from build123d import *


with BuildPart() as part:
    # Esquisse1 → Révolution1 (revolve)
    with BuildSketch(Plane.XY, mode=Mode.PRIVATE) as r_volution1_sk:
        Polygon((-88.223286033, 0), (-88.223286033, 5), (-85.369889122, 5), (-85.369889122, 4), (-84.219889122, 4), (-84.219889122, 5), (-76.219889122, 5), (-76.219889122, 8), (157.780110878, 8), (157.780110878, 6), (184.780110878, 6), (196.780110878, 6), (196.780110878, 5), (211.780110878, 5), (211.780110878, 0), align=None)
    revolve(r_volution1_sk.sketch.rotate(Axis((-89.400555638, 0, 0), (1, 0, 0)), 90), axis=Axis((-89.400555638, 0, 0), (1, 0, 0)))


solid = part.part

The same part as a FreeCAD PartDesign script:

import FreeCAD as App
import Part
import Sketcher
Q = App.Units.Quantity

doc = App.newDocument("Part")
params = doc.addObject("Spreadsheet::Sheet", "Params")
for row, (alias, value) in enumerate([
    ("sketch1_width", "15 mm"),
    ("sketch1_width2", "39 mm"),
    ("sketch1_width3", "234 mm"),
    ("sketch1_width4", "8 mm"),
    ("sketch1_height", "5 mm"),
    ("revolution_angle", "360 deg"),
], start=1):
    params.set(f"A{row}", alias)
    params.set(f"B{row}", "=" + value)
    params.setAlias(f"B{row}", alias)

body = doc.addObject("PartDesign::Body", "Body")

# Sketch on XY plane
sketch1 = body.newObject("Sketcher::SketchObject", "Sketch")
sketch1.AttachmentSupport = (doc.getObject("XY_Plane"), [""])
sketch1.MapMode = "FlatFace"
sketch1.addGeometry(Part.LineSegment(App.Vector(-88.2, 5, 0), App.Vector(-88.2, 0, 0)), False)
sketch1.addGeometry(Part.LineSegment(App.Vector(-88.2, 0, 0), App.Vector(211.8, 0, 0)), False)
sketch1.addGeometry(Part.LineSegment(App.Vector(211.8, 0, 0), App.Vector(211.8, 5, 0)), False)
sketch1.addGeometry(Part.LineSegment(App.Vector(211.8, 5, 0), App.Vector(196.8, 5, 0)), False)
sketch1.addGeometry(Part.LineSegment(App.Vector(196.8, 5, 0), App.Vector(196.8, 6, 0)), False)
sketch1.addGeometry(Part.LineSegment(App.Vector(196.8, 6, 0), App.Vector(157.8, 6, 0)), False)
sketch1.addGeometry(Part.LineSegment(App.Vector(157.8, 6, 0), App.Vector(157.8, 8, 0)), False)
sketch1.addGeometry(Part.LineSegment(App.Vector(157.8, 8, 0), App.Vector(-76.2, 8, 0)), False)
sketch1.addGeometry(Part.LineSegment(App.Vector(-76.2, 8, 0), App.Vector(-76.2, 5, 0)), False)
sketch1.addGeometry(Part.LineSegment(App.Vector(-76.2, 5, 0), App.Vector(-84.2, 5, 0)), False)
sketch1.addGeometry(Part.LineSegment(App.Vector(-84.2, 5, 0), App.Vector(-84.2, 4, 0)), False)
sketch1.addGeometry(Part.LineSegment(App.Vector(-84.2, 4, 0), App.Vector(-85.4, 4, 0)), False)
sketch1.addGeometry(Part.LineSegment(App.Vector(-85.4, 4, 0), App.Vector(-85.4, 5, 0)), False)
sketch1.addGeometry(Part.LineSegment(App.Vector(-85.4, 5, 0), App.Vector(-88.2, 5, 0)), False)
sketch1.addConstraint(Sketcher.Constraint("Coincident", 0, 2, 1, 1))
sketch1.addConstraint(Sketcher.Constraint("Coincident", 1, 2, 2, 1))
sketch1.addConstraint(Sketcher.Constraint("Coincident", 2, 2, 3, 1))
sketch1.addConstraint(Sketcher.Constraint("Coincident", 3, 2, 4, 1))
sketch1.addConstraint(Sketcher.Constraint("Coincident", 4, 2, 5, 1))
sketch1.addConstraint(Sketcher.Constraint("Coincident", 5, 2, 6, 1))
sketch1.addConstraint(Sketcher.Constraint("Coincident", 6, 2, 7, 1))
sketch1.addConstraint(Sketcher.Constraint("Coincident", 7, 2, 8, 1))
sketch1.addConstraint(Sketcher.Constraint("Coincident", 8, 2, 9, 1))
sketch1.addConstraint(Sketcher.Constraint("Coincident", 9, 2, 10, 1))
sketch1.addConstraint(Sketcher.Constraint("Coincident", 10, 2, 11, 1))
sketch1.addConstraint(Sketcher.Constraint("Coincident", 11, 2, 12, 1))
sketch1.addConstraint(Sketcher.Constraint("Coincident", 12, 2, 13, 1))
sketch1.addConstraint(Sketcher.Constraint("Coincident", 13, 2, 0, 1))
sketch1.addConstraint(Sketcher.Constraint("Vertical", 0))
sketch1.addConstraint(Sketcher.Constraint("Horizontal", 1))
sketch1.addConstraint(Sketcher.Constraint("Vertical", 2))
sketch1.addConstraint(Sketcher.Constraint("Horizontal", 3))
sketch1.addConstraint(Sketcher.Constraint("Vertical", 4))
sketch1.addConstraint(Sketcher.Constraint("Horizontal", 5))
sketch1.addConstraint(Sketcher.Constraint("Vertical", 6))
sketch1.addConstraint(Sketcher.Constraint("Horizontal", 7))
sketch1.addConstraint(Sketcher.Constraint("Vertical", 8))
sketch1.addConstraint(Sketcher.Constraint("Horizontal", 9))
sketch1.addConstraint(Sketcher.Constraint("Vertical", 10))
sketch1.addConstraint(Sketcher.Constraint("Horizontal", 11))
sketch1.addConstraint(Sketcher.Constraint("Vertical", 12))
sketch1.addConstraint(Sketcher.Constraint("Horizontal", 13))
sketch1.addConstraint(Sketcher.Constraint("PointOnObject", 0, 2, -1))
sketch1.addConstraint(Sketcher.Constraint("Horizontal", 3, 2, 8, 2))
sketch1.addConstraint(Sketcher.Constraint("Horizontal", 9, 2, 12, 2))
sketch1.addConstraint(Sketcher.Constraint("Equal", 4, 10))
sketch1.addConstraint(Sketcher.Constraint("DistanceX", 3, 2, 3, 1, Q("15 mm")))
sketch1.addConstraint(Sketcher.Constraint("DistanceX", 5, 2, 5, 1, Q("39 mm")))
sketch1.addConstraint(Sketcher.Constraint("DistanceX", 7, 2, 7, 1, Q("234 mm")))
sketch1.addConstraint(Sketcher.Constraint("DistanceX", 9, 2, 9, 1, Q("8 mm")))
sketch1.addConstraint(Sketcher.Constraint("DistanceY", 0, 2, 0, 1, Q("5 mm")))
sketch1.addConstraint(Sketcher.Constraint("DistanceY", 4, 1, 4, 2, Q("1 mm")))
sketch1.addConstraint(Sketcher.Constraint("DistanceY", 6, 1, 6, 2, Q("2 mm")))
sketch1.addConstraint(Sketcher.Constraint("DistanceX", 11, 2, 11, 1, Q("1.15 mm")))
sketch1.addConstraint(Sketcher.Constraint("DistanceX", 1, 1, 1, 2, Q("300.003397 mm")))
sketch1.addConstraint(Sketcher.Constraint("DistanceX", -1, 1, 1, 2, Q("211.780111 mm")))
sketch1.setExpression("Constraints[32]", "Params.sketch1_width")
sketch1.setExpression("Constraints[33]", "Params.sketch1_width2")
sketch1.setExpression("Constraints[34]", "Params.sketch1_width3")
sketch1.setExpression("Constraints[35]", "Params.sketch1_width4")
sketch1.setExpression("Constraints[36]", "Params.sketch1_height")
revolution = body.newObject("PartDesign::Revolution", "Revolution")
revolution.Profile = sketch1
revolution.ReferenceAxis = (sketch1, ["H_Axis"])
revolution.setExpression("Angle", "Params.revolution_angle")

doc.recompute()
